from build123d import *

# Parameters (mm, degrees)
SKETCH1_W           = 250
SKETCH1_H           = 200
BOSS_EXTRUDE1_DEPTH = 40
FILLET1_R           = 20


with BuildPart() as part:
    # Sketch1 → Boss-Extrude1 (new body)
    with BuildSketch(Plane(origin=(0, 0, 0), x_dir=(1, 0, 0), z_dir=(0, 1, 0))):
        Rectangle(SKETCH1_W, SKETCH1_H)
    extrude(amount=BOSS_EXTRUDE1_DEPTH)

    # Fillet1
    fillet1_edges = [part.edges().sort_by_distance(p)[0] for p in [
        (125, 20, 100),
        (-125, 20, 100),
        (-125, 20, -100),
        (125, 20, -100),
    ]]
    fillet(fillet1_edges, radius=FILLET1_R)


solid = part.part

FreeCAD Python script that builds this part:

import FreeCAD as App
import Part
import Sketcher

V = App.Vector


def edges_at(feature, points):
    """Names of the edges that pass closest to the given points."""
    edges = feature.Shape.Edges
    near = lambda p: min(range(len(edges)), key=lambda i: edges[i].distToShape(Part.Vertex(*p))[0])
    return sorted({f"Edge{near(p) + 1}" for p in points})

doc = App.newDocument("Part")
params = doc.addObject("Spreadsheet::Sheet", "Params")
for row, (alias, value) in enumerate([
    ("sketch1_width", "250 mm"),
    ("sketch1_height", "200 mm"),
    ("pad1_length", "40 mm"),
    ("fillet_radius", "20 mm"),
], start=1):
    params.set(f"A{row}", alias)
    params.set(f"B{row}", "=" + value)
    params.setAlias(f"B{row}", alias)

body = doc.addObject("PartDesign::Body", "Body")

sketch1 = doc.addObject("Sketcher::SketchObject", "Sketch")
body.addObject(sketch1)
sketch1.AttachmentSupport = (doc.XZ_Plane, [""])
sketch1.MapMode = "FlatFace"
sketch1.addGeometry([
    Part.LineSegment(V(-125, -100, 0), V(-125, 100, 0)),
    Part.LineSegment(V(-125, 100, 0), V(125, 100, 0)),
    Part.LineSegment(V(125, 100, 0), V(125, -100, 0)),
    Part.LineSegment(V(125, -100, 0), V(-125, -100, 0)),
], False)
sketch1.addConstraint([
    Sketcher.Constraint("Coincident", 0, 2, 1, 1),
    Sketcher.Constraint("Coincident", 1, 2, 2, 1),
    Sketcher.Constraint("Coincident", 2, 2, 3, 1),
    Sketcher.Constraint("Coincident", 3, 2, 0, 1),
    Sketcher.Constraint("Vertical", 0),
    Sketcher.Constraint("Horizontal", 1),
    Sketcher.Constraint("Vertical", 2),
    Sketcher.Constraint("Horizontal", 3),
    Sketcher.Constraint("Symmetric", 0, 2, 2, 2, -1, 1),
    Sketcher.Constraint("DistanceX", 1, 1, 1, 2, 250.0),
    Sketcher.Constraint("DistanceY", 0, 1, 0, 2, 200.0),
])
sketch1.setExpression("Constraints[9]", "Params.sketch1_width")
sketch1.setExpression("Constraints[10]", "Params.sketch1_height")
pad1 = doc.addObject("PartDesign::Pad", "Pad")
body.addObject(pad1)
pad1.Profile = sketch1
pad1.setExpression("Length", "Params.pad1_length")
pad1.Reversed = True
doc.recompute()

fillet = doc.addObject("PartDesign::Fillet", "Fillet")
body.addObject(fillet)
fillet.Base = (pad1, edges_at(pad1, [
    (125, 20, 100),
    (-125, 20, 100),
    (-125, 20, -100),
    (125, 20, -100),
]))
fillet.setExpression("Radius", "Params.fillet_radius")

doc.recompute()
